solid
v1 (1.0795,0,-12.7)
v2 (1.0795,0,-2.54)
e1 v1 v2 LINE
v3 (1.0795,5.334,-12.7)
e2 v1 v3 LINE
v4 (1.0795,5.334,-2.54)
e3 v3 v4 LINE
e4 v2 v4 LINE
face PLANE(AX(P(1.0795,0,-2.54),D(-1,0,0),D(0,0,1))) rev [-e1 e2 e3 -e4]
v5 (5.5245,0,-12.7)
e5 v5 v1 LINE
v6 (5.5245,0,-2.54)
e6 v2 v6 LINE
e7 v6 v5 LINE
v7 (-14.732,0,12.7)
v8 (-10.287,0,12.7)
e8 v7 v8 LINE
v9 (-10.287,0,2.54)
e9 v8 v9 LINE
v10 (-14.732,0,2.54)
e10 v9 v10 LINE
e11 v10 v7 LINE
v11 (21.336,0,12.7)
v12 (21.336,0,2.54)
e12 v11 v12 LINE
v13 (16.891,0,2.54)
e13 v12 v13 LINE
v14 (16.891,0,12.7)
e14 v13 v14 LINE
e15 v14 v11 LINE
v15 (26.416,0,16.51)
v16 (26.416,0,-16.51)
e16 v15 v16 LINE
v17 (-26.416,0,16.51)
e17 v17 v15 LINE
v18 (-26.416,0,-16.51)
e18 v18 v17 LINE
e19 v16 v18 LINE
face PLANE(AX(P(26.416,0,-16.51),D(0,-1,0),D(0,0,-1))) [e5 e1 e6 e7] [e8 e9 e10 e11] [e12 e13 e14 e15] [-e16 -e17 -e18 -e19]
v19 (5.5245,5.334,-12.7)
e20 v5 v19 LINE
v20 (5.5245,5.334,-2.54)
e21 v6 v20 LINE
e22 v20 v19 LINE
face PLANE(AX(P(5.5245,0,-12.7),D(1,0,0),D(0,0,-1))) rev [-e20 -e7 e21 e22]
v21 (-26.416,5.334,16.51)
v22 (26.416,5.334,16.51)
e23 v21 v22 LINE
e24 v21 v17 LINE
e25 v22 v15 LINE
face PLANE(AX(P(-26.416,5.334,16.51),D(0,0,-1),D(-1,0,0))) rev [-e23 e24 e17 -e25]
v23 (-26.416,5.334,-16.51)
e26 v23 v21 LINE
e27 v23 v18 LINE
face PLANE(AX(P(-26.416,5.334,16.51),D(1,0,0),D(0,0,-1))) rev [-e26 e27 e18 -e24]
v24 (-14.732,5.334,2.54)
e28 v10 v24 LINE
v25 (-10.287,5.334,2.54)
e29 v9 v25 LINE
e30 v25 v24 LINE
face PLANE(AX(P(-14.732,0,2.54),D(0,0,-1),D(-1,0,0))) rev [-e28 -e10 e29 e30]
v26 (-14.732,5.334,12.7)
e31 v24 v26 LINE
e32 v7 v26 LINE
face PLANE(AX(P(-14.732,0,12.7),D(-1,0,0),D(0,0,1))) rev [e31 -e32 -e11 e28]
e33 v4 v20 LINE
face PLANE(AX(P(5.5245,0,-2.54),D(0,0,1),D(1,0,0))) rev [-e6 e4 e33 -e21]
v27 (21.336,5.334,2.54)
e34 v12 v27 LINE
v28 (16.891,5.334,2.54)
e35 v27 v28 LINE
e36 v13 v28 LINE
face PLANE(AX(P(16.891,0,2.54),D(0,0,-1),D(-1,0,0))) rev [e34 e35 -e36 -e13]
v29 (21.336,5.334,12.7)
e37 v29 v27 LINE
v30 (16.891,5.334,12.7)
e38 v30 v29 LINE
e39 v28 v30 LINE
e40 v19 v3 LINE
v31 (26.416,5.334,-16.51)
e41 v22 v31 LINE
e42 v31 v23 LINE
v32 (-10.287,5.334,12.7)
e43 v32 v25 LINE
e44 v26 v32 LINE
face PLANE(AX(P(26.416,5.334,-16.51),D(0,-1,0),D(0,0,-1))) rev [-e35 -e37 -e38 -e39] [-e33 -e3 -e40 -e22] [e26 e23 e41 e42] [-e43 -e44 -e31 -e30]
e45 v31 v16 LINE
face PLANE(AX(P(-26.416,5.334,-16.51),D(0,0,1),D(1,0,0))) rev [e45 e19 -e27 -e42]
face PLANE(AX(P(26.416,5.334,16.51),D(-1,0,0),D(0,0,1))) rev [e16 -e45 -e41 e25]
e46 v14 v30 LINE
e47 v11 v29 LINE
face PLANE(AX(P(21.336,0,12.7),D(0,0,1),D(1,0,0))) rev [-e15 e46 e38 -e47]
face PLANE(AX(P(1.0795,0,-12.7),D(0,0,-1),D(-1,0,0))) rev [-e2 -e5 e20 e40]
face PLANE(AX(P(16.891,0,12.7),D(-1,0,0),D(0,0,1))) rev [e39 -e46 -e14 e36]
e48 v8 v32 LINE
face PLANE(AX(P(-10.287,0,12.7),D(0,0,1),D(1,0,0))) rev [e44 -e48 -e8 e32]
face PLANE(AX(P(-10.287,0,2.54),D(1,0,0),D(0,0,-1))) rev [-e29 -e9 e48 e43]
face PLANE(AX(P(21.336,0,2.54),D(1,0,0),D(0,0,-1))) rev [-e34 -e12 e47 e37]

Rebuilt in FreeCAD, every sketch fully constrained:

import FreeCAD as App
import Part
import Sketcher
Q = App.Units.Quantity


def add_polygon(sketch, points):
    """Adds a closed chain of lines whose ends are joined by coincident constraints."""
    first, n = sketch.GeometryCount, len(points)
    for a, b in zip(points, points[1:] + points[:1]):
        sketch.addGeometry(Part.LineSegment(App.Vector(*a, 0), App.Vector(*b, 0)), False)
    for i in range(n):
        sketch.addConstraint(Sketcher.Constraint("Coincident", first + i, 2, first + (i + 1) % n, 1))

doc = App.newDocument("Part")
params = doc.addObject("Spreadsheet::Sheet", "Params")
for row, (alias, value) in enumerate([
    ("sketch1_height", "1.3 in"),
    ("sketch1_width", "2.08 in"),
    ("pad1_length", "0.21 in"),
    ("sketch2_height", "0.4 in"),
    ("sketch2_width", "0.175 in"),
], start=1):
    params.set(f"A{row}", alias)
    params.set(f"B{row}", "=" + value)
    params.setAlias(f"B{row}", alias)

body = doc.addObject("PartDesign::Body", "Body")

# Sketch on XZ plane
sketch1 = doc.addObject("Sketcher::SketchObject", "Sketch")
body.addObject(sketch1)
sketch1.AttachmentSupport = (doc.XZ_Plane, [""])
sketch1.MapMode = "FlatFace"
add_polygon(sketch1, [(-26, -17), (-26, 17), (26, 17), (26, -17)])  # lines 0-3
sketch1.addConstraint([
    Sketcher.Constraint("Vertical", 0),
    Sketcher.Constraint("Horizontal", 1),
    Sketcher.Constraint("Vertical", 2),
    Sketcher.Constraint("Horizontal", 3),
    Sketcher.Constraint("Symmetric", 0, 2, 2, 2, -1, 1),
    Sketcher.Constraint("DistanceY", 0, 1, 0, 2, Q("1.3 in")),
    Sketcher.Constraint("DistanceX", 1, 1, 1, 2, Q("2.08 in")),
])
sketch1.setExpression("Constraints[9]", "Params.sketch1_height")
sketch1.setExpression("Constraints[10]", "Params.sketch1_width")
pad1 = doc.addObject("PartDesign::Pad", "Pad")
body.addObject(pad1)
pad1.Profile = sketch1
pad1.setExpression("Length", "Params.pad1_length")
pad1.Reversed = True

# Sketch on XZ plane
sketch2 = doc.addObject("Sketcher::SketchObject", "Sketch001")
body.addObject(sketch2)
sketch2.AttachmentSupport = (doc.XZ_Plane, [""])
sketch2.MapMode = "FlatFace"
sketch2.AttachmentOffset = App.Placement(App.Vector(0, 0, -0.21 * 25.4), App.Rotation())
add_polygon(sketch2, [(16.9, 2.5), (16.9, 12.7), (21.3, 12.7), (21.3, 2.5)])  # lines 0-3
add_polygon(sketch2, [(1.1, -12.7), (1.1, -2.5), (5.5, -2.5), (5.5, -12.7)])  # lines 4-7
add_polygon(sketch2, [(-14.7, 2.5), (-14.7, 12.7), (-10.3, 12.7), (-10.3, 2.5)])  # lines 8-11
sketch2.addConstraint([
    Sketcher.Constraint("Vertical", 0),
    Sketcher.Constraint("Horizontal", 1),
    Sketcher.Constraint("Vertical", 2),
    Sketcher.Constraint("Horizontal", 3),
    Sketcher.Constraint("Vertical", 4),
    Sketcher.Constraint("Horizontal", 5),
    Sketcher.Constraint("Vertical", 6),
    Sketcher.Constraint("Horizontal", 7),
    Sketcher.Constraint("Vertical", 8),
    Sketcher.Constraint("Horizontal", 9),
    Sketcher.Constraint("Vertical", 10),
    Sketcher.Constraint("Horizontal", 11),
    Sketcher.Constraint("Horizontal", 1, 2, 8, 2),
    Sketcher.Constraint("Horizontal", 3, 2, 10, 2),
    Sketcher.Constraint("Equal", 3, 5),
    Sketcher.Constraint("Equal", 7, 9),
    Sketcher.Constraint("Equal", 2, 4),
    Sketcher.Constraint("DistanceY", 0, 1, 0, 2, Q("0.4 in")),
    Sketcher.Constraint("DistanceY", 6, 2, 0, 2, Q("1 in")),
    Sketcher.Constraint("DistanceY", -1, 1, 0, 2, Q("0.5 in")),
    Sketcher.Constraint("DistanceX", 1, 1, 1, 2, Q("0.175 in")),
    Sketcher.Constraint("DistanceX", -1, 1, 1, 2, Q("0.84 in")),
    Sketcher.Constraint("DistanceX", 8, 2, -1, 1, Q("0.58 in")),
    Sketcher.Constraint("DistanceX", -1, 1, 4, 2, Q("0.0425 in")),
])
sketch2.setExpression("Constraints[29]", "Params.sketch2_height")
sketch2.setExpression("Constraints[32]", "Params.sketch2_width")
pocket1 = doc.addObject("PartDesign::Pocket", "Pocket")
body.addObject(pocket1)
pocket1.Profile = sketch2
pocket1.Type = "ThroughAll"
pocket1.Reversed = True

doc.recompute()
